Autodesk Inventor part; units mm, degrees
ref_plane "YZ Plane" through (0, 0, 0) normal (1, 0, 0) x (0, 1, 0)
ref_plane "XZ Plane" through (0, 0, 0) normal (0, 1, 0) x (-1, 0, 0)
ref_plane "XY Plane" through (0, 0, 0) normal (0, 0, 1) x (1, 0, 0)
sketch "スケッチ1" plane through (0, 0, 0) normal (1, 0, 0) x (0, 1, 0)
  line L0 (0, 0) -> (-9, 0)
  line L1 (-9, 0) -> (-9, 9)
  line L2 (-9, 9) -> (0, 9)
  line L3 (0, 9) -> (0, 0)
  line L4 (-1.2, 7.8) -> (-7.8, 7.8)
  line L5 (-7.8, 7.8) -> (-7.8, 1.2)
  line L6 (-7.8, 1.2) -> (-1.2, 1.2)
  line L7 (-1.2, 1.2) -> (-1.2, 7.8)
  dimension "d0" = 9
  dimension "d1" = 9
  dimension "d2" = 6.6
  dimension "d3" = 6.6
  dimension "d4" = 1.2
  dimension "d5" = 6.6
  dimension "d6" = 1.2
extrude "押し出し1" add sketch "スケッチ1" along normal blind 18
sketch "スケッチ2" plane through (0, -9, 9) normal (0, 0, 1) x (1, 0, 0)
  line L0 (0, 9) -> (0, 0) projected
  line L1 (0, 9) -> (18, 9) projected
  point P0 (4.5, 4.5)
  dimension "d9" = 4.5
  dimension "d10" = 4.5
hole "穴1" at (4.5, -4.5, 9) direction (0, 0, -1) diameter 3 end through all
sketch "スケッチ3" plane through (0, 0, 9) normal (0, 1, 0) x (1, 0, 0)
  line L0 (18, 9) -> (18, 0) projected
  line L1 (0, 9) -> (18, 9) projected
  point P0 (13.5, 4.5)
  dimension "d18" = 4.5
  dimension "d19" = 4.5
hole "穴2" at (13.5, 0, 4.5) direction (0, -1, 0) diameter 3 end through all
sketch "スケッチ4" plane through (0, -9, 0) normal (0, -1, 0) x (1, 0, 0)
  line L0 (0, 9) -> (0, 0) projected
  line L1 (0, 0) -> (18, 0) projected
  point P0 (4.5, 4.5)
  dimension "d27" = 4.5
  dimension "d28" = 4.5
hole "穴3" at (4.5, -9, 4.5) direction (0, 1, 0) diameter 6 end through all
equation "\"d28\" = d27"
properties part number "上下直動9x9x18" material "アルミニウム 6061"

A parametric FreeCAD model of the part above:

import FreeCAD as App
import Part
import Sketcher

V = App.Vector

doc = App.newDocument("Part")
params = doc.addObject("Spreadsheet::Sheet", "Params")
for row, (alias, value) in enumerate([
    ("sketch1_width", "9 mm"),
    ("sketch1_width2", "6.6 mm"),
    ("pad1_length", "18 mm"),
    ("sketch2_diameter", "3 mm"),
    ("hole_diameter", "3 mm"),
    ("sketch3_diameter", "3 mm"),
    ("hole2_diameter", "3 mm"),
    ("sketch4_diameter", "6 mm"),
    ("hole3_diameter", "6 mm"),
], start=1):
    params.set(f"A{row}", alias)
    params.set(f"B{row}", "=" + value)
    params.setAlias(f"B{row}", alias)

body = doc.addObject("PartDesign::Body", "Body")

sketch1 = doc.addObject("Sketcher::SketchObject", "Sketch")
body.addObject(sketch1)
sketch1.AttachmentSupport = (doc.YZ_Plane, [""])
sketch1.MapMode = "FlatFace"
sketch1.addGeometry([
    Part.LineSegment(V(-9, 0, 0), V(0, 0, 0)),
    Part.LineSegment(V(0, 0, 0), V(0, 9, 0)),
    Part.LineSegment(V(0, 9, 0), V(-9, 9, 0)),
    Part.LineSegment(V(-9, 9, 0), V(-9, 0, 0)),
    Part.LineSegment(V(-8, 8, 0), V(-1, 8, 0)),
    Part.LineSegment(V(-1, 8, 0), V(-1, 1, 0)),
    Part.LineSegment(V(-1, 1, 0), V(-8, 1, 0)),
    Part.LineSegment(V(-8, 1, 0), V(-8, 8, 0)),
], False)
sketch1.addConstraint([
    Sketcher.Constraint("Coincident", 0, 2, 1, 1),
    Sketcher.Constraint("Coincident", 1, 2, 2, 1),
    Sketcher.Constraint("Coincident", 2, 2, 3, 1),
    Sketcher.Constraint("Coincident", 3, 2, 0, 1),
    Sketcher.Constraint("Coincident", 4, 2, 5, 1),
    Sketcher.Constraint("Coincident", 5, 2, 6, 1),
    Sketcher.Constraint("Coincident", 6, 2, 7, 1),
    Sketcher.Constraint("Coincident", 7, 2, 4, 1),
    Sketcher.Constraint("Horizontal", 0),
    Sketcher.Constraint("Vertical", 1),
    Sketcher.Constraint("Horizontal", 2),
    Sketcher.Constraint("Vertical", 3),
    Sketcher.Constraint("Horizontal", 4),
    Sketcher.Constraint("Vertical", 5),
    Sketcher.Constraint("Horizontal", 6),
    Sketcher.Constraint("Vertical", 7),
    Sketcher.Constraint("Coincident", 0, 2, -1, 1),
    Sketcher.Constraint("Equal", 2, 1),
    Sketcher.Constraint("Equal", 6, 5),
    Sketcher.Constraint("DistanceX", 0, 1, 0, 2, 9.0),
    Sketcher.Constraint("DistanceX", 4, 1, 4, 2, 6.6),
    Sketcher.Constraint("DistanceX", 4, 2, -1, 1, 1.2),
    Sketcher.Constraint("DistanceY", -1, 1, 5, 2, 1.2),
])
sketch1.setExpression("Constraints[19]", "Params.sketch1_width")
sketch1.setExpression("Constraints[20]", "Params.sketch1_width2")
pad1 = doc.addObject("PartDesign::Pad", "Pad")
body.addObject(pad1)
pad1.Profile = sketch1
pad1.setExpression("Length", "Params.pad1_length")

sketch2 = doc.addObject("Sketcher::SketchObject", "Sketch001")
body.addObject(sketch2)
sketch2.AttachmentSupport = (doc.XY_Plane, [""])
sketch2.MapMode = "FlatFace"
sketch2.AttachmentOffset = App.Placement(V(0, 0, 9), App.Rotation())
sketch2.addGeometry(Part.Circle(V(4.5, -4.5, 0), V(0, 0, 1), 1.5), False)
sketch2.addConstraint([
    Sketcher.Constraint("Diameter", 0, 3.0),
    Sketcher.Constraint("DistanceX", -1, 1, 0, 3, 4.5),
    Sketcher.Constraint("DistanceY", 0, 3, -1, 1, 4.5),
])
sketch2.setExpression("Constraints[0]", "Params.sketch2_diameter")
doc.recompute()
hole = doc.addObject("PartDesign::Hole", "Hole")
body.addObject(hole)
hole.Profile = sketch2
hole.ThreadType = "None"
hole.setExpression("Diameter", "Params.hole_diameter")
hole.DepthType = "ThroughAll"

sketch3 = doc.addObject("Sketcher::SketchObject", "Sketch002")
body.addObject(sketch3)
sketch3.AttachmentSupport = (doc.XZ_Plane, [""])
sketch3.MapMode = "FlatFace"
sketch3.addGeometry(Part.Circle(V(13.5, 4.5, 0), V(0, 0, 1), 1.5), False)
sketch3.addConstraint([
    Sketcher.Constraint("Diameter", 0, 3.0),
    Sketcher.Constraint("DistanceX", -1, 1, 0, 3, 13.5),
    Sketcher.Constraint("DistanceY", -1, 1, 0, 3, 4.5),
])
sketch3.setExpression("Constraints[0]", "Params.sketch3_diameter")
doc.recompute()
hole2 = doc.addObject("PartDesign::Hole", "Hole001")
body.addObject(hole2)
hole2.Profile = sketch3
hole2.ThreadType = "None"
hole2.setExpression("Diameter", "Params.hole2_diameter")
hole2.DepthType = "ThroughAll"
hole2.Reversed = True

sketch4 = doc.addObject("Sketcher::SketchObject", "Sketch003")
body.addObject(sketch4)
sketch4.AttachmentSupport = (doc.XZ_Plane, [""])
sketch4.MapMode = "FlatFace"
sketch4.AttachmentOffset = App.Placement(V(0, 0, 9), App.Rotation())
sketch4.addGeometry(Part.Circle(V(4.5, 4.5, 0), V(0, 0, 1), 3), False)
sketch4.addConstraint([
    Sketcher.Constraint("Diameter", 0, 6.0),
    Sketcher.Constraint("DistanceX", -1, 1, 0, 3, 4.5),
    Sketcher.Constraint("DistanceY", -1, 1, 0, 3, 4.5),
])
sketch4.setExpression("Constraints[0]", "Params.sketch4_diameter")
doc.recompute()
hole3 = doc.addObject("PartDesign::Hole", "Hole002")
body.addObject(hole3)
hole3.Profile = sketch4
hole3.ThreadType = "None"
hole3.setExpression("Diameter", "Params.hole3_diameter")
hole3.DepthType = "ThroughAll"

doc.recompute()
